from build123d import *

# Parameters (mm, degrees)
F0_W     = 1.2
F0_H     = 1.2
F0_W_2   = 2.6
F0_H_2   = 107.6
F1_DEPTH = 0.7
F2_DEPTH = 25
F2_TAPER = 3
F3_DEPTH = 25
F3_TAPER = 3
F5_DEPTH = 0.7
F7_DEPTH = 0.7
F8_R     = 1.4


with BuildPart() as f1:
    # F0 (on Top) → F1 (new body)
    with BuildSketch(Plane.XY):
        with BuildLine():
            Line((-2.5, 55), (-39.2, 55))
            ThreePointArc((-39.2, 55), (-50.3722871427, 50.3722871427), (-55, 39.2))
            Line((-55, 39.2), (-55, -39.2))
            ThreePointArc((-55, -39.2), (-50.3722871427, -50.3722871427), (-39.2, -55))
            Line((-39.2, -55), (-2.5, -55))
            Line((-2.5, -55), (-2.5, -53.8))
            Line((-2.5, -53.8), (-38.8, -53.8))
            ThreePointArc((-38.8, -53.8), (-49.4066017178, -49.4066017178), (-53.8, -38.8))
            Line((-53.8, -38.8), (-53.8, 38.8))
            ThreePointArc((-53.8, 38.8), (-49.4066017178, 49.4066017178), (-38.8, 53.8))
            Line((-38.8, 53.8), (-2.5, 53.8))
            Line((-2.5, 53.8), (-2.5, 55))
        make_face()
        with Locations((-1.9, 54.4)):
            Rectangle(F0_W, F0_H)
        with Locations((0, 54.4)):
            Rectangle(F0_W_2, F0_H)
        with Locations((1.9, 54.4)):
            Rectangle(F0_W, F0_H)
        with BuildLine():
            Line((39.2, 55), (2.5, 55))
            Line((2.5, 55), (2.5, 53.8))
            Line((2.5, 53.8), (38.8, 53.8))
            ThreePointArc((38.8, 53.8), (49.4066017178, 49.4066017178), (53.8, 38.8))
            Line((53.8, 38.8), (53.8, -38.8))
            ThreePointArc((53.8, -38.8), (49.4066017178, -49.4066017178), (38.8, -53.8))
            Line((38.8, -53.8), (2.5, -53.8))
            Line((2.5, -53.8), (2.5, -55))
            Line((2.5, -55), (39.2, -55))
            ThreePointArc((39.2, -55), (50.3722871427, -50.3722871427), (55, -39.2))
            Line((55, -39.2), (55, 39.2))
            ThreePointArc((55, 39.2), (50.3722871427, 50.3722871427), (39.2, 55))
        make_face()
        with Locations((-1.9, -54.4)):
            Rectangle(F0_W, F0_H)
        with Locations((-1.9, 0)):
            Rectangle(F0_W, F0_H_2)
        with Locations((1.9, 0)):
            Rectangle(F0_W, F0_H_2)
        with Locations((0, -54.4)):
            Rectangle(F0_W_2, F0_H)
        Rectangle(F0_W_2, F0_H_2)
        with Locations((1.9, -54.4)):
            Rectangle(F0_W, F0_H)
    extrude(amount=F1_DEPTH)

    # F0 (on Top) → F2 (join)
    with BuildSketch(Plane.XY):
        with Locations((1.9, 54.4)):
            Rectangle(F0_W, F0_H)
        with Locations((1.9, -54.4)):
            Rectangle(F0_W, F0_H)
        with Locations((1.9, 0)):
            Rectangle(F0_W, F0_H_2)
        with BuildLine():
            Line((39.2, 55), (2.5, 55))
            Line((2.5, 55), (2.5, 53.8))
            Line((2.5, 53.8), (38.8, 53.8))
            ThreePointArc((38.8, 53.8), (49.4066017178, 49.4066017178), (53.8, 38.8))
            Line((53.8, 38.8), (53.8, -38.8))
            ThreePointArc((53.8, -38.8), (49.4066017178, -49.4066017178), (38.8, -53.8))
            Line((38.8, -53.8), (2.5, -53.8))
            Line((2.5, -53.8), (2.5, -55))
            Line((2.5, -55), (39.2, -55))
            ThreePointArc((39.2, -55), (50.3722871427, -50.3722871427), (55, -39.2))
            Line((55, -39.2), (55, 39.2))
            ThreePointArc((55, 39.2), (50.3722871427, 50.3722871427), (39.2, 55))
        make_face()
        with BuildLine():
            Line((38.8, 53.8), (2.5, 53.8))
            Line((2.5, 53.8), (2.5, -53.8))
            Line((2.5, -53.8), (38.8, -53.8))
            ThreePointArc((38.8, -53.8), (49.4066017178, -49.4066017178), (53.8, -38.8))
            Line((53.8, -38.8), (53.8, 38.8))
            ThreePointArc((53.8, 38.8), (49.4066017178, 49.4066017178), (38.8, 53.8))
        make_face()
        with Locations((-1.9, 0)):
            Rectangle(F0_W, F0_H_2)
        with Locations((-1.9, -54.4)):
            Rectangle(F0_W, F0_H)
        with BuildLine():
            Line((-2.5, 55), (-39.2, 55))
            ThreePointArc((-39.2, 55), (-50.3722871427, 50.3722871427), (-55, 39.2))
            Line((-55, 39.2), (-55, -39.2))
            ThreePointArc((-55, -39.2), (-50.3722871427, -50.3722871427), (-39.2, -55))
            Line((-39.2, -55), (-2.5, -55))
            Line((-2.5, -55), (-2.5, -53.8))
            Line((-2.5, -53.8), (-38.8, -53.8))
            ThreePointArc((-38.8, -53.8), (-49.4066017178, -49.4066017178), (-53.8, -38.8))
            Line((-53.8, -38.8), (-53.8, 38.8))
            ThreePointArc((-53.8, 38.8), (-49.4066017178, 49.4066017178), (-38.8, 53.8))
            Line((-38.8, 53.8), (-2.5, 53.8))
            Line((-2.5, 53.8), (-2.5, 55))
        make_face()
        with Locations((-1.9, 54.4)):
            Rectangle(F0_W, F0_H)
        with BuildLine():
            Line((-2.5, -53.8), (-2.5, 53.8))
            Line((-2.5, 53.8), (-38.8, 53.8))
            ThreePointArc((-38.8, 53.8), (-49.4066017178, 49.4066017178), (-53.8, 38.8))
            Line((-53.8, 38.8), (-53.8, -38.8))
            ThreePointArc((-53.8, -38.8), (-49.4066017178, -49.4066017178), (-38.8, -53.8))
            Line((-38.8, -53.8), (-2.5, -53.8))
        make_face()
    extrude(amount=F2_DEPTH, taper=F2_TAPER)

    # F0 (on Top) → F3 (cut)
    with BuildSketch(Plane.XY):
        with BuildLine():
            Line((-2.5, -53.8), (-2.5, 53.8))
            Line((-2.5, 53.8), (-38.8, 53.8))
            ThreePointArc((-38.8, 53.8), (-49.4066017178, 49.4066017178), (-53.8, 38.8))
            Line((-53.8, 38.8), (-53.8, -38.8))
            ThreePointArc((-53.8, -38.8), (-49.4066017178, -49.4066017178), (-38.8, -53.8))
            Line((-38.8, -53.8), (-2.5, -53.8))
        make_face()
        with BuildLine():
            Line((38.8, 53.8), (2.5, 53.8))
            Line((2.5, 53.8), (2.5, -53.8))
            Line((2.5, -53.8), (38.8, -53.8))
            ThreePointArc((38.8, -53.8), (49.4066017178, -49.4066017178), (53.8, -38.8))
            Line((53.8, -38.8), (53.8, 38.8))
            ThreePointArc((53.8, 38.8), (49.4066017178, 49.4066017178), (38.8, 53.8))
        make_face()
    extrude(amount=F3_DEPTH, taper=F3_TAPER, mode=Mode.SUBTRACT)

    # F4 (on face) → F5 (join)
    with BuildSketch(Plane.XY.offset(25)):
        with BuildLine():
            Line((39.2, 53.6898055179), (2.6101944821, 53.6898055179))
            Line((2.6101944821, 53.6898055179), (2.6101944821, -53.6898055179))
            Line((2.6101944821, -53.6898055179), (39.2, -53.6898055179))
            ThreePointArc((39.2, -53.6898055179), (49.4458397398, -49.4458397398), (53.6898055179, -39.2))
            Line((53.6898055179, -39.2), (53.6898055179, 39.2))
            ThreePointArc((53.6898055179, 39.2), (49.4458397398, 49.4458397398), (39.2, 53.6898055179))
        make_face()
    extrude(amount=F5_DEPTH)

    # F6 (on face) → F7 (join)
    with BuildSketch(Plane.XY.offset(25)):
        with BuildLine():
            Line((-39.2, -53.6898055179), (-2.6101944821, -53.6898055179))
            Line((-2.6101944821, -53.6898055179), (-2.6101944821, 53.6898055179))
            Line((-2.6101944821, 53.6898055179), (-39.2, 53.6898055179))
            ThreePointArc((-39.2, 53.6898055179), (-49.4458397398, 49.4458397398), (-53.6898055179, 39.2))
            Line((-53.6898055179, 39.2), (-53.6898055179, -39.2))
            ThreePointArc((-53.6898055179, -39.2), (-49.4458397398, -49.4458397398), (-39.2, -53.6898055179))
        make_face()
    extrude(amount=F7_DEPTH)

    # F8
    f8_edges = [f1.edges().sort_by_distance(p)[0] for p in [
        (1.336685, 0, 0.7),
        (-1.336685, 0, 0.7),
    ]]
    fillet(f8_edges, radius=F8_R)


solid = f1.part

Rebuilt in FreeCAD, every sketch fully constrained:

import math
import FreeCAD as App
import Part
import Sketcher
from FreeCAD import Vector
Q = App.Units.Quantity


def edges_at(feature, points):
    """Names of the edges that pass closest to the given points."""
    edges = feature.Shape.Edges
    near = lambda p: min(range(len(edges)), key=lambda i: edges[i].distToShape(Part.Vertex(*p))[0])
    return sorted({f"Edge{near(p) + 1}" for p in points})

doc = App.newDocument("Part")
body = doc.addObject("PartDesign::Body", "Body")

# Sketch on XY plane
sketch1 = body.newObject("Sketcher::SketchObject", "Sketch")
sketch1.AttachmentSupport = (doc.getObject("XY_Plane"), [""])
sketch1.MapMode = "FlatFace"
sketch1.addGeometry([
    Part.LineSegment(Vector(-55, 39, 0), Vector(-55, -39, 0)),  # 0
    Part.ArcOfCircle(Part.Circle(Vector(-39, -39, 0), Vector(0, 0, 1), 16), math.radians(180), math.radians(270)),  # 1
    Part.LineSegment(Vector(-39, -55, 0), Vector(39, -55, 0)),  # 2
    Part.ArcOfCircle(Part.Circle(Vector(39, -39, 0), Vector(0, 0, 1), 16), math.radians(-90), math.radians(0)),  # 3
    Part.LineSegment(Vector(55, -39, 0), Vector(55, 39, 0)),  # 4
    Part.ArcOfCircle(Part.Circle(Vector(39, 39, 0), Vector(0, 0, 1), 16), math.radians(0), math.radians(90)),  # 5
    Part.LineSegment(Vector(39, 55, 0), Vector(-39, 55, 0)),  # 6
    Part.ArcOfCircle(Part.Circle(Vector(-39, 39, 0), Vector(0, 0, 1), 16), math.radians(90), math.radians(180)),  # 7
    Part.LineSegment(Vector(-39, 54, 0), Vector(-2, 54, 0)),  # 8
    Part.LineSegment(Vector(-2, 54, 0), Vector(-2, -54, 0)),  # 9
    Part.LineSegment(Vector(-2, -54, 0), Vector(-39, -54, 0)),  # 10
    Part.ArcOfCircle(Part.Circle(Vector(-39, -39, 0), Vector(0, 0, 1), 15), math.radians(180), math.radians(270)),  # 11
    Part.LineSegment(Vector(-54, -39, 0), Vector(-54, 39, 0)),  # 12
    Part.ArcOfCircle(Part.Circle(Vector(-39, 39, 0), Vector(0, 0, 1), 15), math.radians(90), math.radians(180)),  # 13
    Part.ArcOfCircle(Part.Circle(Vector(39, 39, 0), Vector(0, 0, 1), 15), math.radians(0), math.radians(90)),  # 14
    Part.LineSegment(Vector(54, 39, 0), Vector(54, -39, 0)),  # 15
    Part.ArcOfCircle(Part.Circle(Vector(39, -39, 0), Vector(0, 0, 1), 15), math.radians(-90), math.radians(0)),  # 16
    Part.LineSegment(Vector(39, -54, 0), Vector(2, -54, 0)),  # 17
    Part.LineSegment(Vector(2, -54, 0), Vector(2, 54, 0)),  # 18
    Part.LineSegment(Vector(2, 54, 0), Vector(39, 54, 0)),  # 19
], False)
sketch1.addConstraint([
    Sketcher.Constraint("Tangent", 0, 2, 1, 1),
    Sketcher.Constraint("Tangent", 1, 2, 2, 1),
    Sketcher.Constraint("Tangent", 2, 2, 3, 1),
    Sketcher.Constraint("Tangent", 3, 2, 4, 1),
    Sketcher.Constraint("Tangent", 4, 2, 5, 1),
    Sketcher.Constraint("Tangent", 5, 2, 6, 1),
    Sketcher.Constraint("Tangent", 6, 2, 7, 1),
    Sketcher.Constraint("Tangent", 7, 2, 0, 1),
    Sketcher.Constraint("Coincident", 8, 2, 9, 1),
    Sketcher.Constraint("Coincident", 9, 2, 10, 1),
    Sketcher.Constraint("Tangent", 10, 2, 11, 2),
    Sketcher.Constraint("Tangent", 11, 1, 12, 1),
    Sketcher.Constraint("Tangent", 12, 2, 13, 2),
    Sketcher.Constraint("Tangent", 13, 1, 8, 1),
    Sketcher.Constraint("Tangent", 14, 1, 15, 1),
    Sketcher.Constraint("Tangent", 15, 2, 16, 2),
    Sketcher.Constraint("Tangent", 16, 1, 17, 1),
    Sketcher.Constraint("Coincident", 17, 2, 18, 1),
    Sketcher.Constraint("Coincident", 18, 2, 19, 1),
    Sketcher.Constraint("Tangent", 19, 2, 14, 2),
    Sketcher.Constraint("Vertical", 0),
    Sketcher.Constraint("Horizontal", 2),
    Sketcher.Constraint("Vertical", 4),
    Sketcher.Constraint("Horizontal", 6),
    Sketcher.Constraint("Horizontal", 8),
    Sketcher.Constraint("Vertical", 9),
    Sketcher.Constraint("Horizontal", 10),
    Sketcher.Constraint("Vertical", 12),
    Sketcher.Constraint("Vertical", 15),
    Sketcher.Constraint("Horizontal", 17),
    Sketcher.Constraint("Vertical", 18),
    Sketcher.Constraint("Horizontal", 19),
    Sketcher.Constraint("Equal", 1, 3),
    Sketcher.Constraint("Equal", 3, 5),
    Sketcher.Constraint("Equal", 5, 7),
    Sketcher.Constraint("Equal", 11, 13),
    Sketcher.Constraint("Equal", 13, 14),
    Sketcher.Constraint("Equal", 14, 16),
    Sketcher.Constraint("Symmetric", 1, 3, 5, 3, -1, 1),
    Sketcher.Constraint("Symmetric", 11, 3, 14, 3, -1, 1),
    Sketcher.Constraint("Symmetric", 8, 2, 17, 2, -1, 1),
    Sketcher.Constraint("Horizontal", 13, 3, 14, 3),
    Sketcher.Constraint("Equal", 6, 0),
    Sketcher.Constraint("Radius", 11, Q("15 mm")),
    Sketcher.Constraint("Radius", 1, Q("15.8 mm")),
    Sketcher.Constraint("DistanceX", 2, 1, 2, 2, Q("78.4 mm")),
    Sketcher.Constraint("DistanceX", 8, 1, 8, 2, Q("36.3 mm")),
    Sketcher.Constraint("DistanceY", 9, 2, 9, 1, Q("107.6 mm")),
    Sketcher.Constraint("DistanceX", 11, 3, 3, 3, Q("78 mm")),
])
pad1 = body.newObject("PartDesign::Pad", "Pad")
pad1.Profile = sketch1
pad1.Length = 0.7

# Sketch on XY plane
sketch2 = body.newObject("Sketcher::SketchObject", "Sketch001")
sketch2.AttachmentSupport = (doc.getObject("XY_Plane"), [""])
sketch2.MapMode = "FlatFace"
sketch2.addGeometry([
    Part.LineSegment(Vector(1, 55, 0), Vector(1, -55, 0)),  # 0
    Part.LineSegment(Vector(1, -55, 0), Vector(39, -55, 0)),  # 1
    Part.ArcOfCircle(Part.Circle(Vector(39, -39, 0), Vector(0, 0, 1), 16), math.radians(-90), math.radians(0)),  # 2
    Part.LineSegment(Vector(55, -39, 0), Vector(55, 39, 0)),  # 3
    Part.ArcOfCircle(Part.Circle(Vector(39, 39, 0), Vector(0, 0, 1), 16), math.radians(0), math.radians(90)),  # 4
    Part.LineSegment(Vector(39, 55, 0), Vector(1, 55, 0)),  # 5
    Part.LineSegment(Vector(-1, -55, 0), Vector(-1, 55, 0)),  # 6
    Part.LineSegment(Vector(-1, 55, 0), Vector(-39, 55, 0)),  # 7
    Part.ArcOfCircle(Part.Circle(Vector(-39, 39, 0), Vector(0, 0, 1), 16), math.radians(90), math.radians(180)),  # 8
    Part.LineSegment(Vector(-55, 39, 0), Vector(-55, -39, 0)),  # 9
    Part.ArcOfCircle(Part.Circle(Vector(-39, -39, 0), Vector(0, 0, 1), 16), math.radians(180), math.radians(270)),  # 10
    Part.LineSegment(Vector(-39, -55, 0), Vector(-1, -55, 0)),  # 11
], False)
sketch2.addConstraint([
    Sketcher.Constraint("Coincident", 0, 2, 1, 1),
    Sketcher.Constraint("Tangent", 1, 2, 2, 1),
    Sketcher.Constraint("Tangent", 2, 2, 3, 1),
    Sketcher.Constraint("Tangent", 3, 2, 4, 1),
    Sketcher.Constraint("Tangent", 4, 2, 5, 1),
    Sketcher.Constraint("Coincident", 5, 2, 0, 1),
    Sketcher.Constraint("Coincident", 6, 2, 7, 1),
    Sketcher.Constraint("Tangent", 7, 2, 8, 1),
    Sketcher.Constraint("Tangent", 8, 2, 9, 1),
    Sketcher.Constraint("Tangent", 9, 2, 10, 1),
    Sketcher.Constraint("Tangent", 10, 2, 11, 1),
    Sketcher.Constraint("Coincident", 11, 2, 6, 1),
    Sketcher.Constraint("Vertical", 0),
    Sketcher.Constraint("Horizontal", 1),
    Sketcher.Constraint("Vertical", 3),
    Sketcher.Constraint("Horizontal", 5),
    Sketcher.Constraint("Vertical", 6),
    Sketcher.Constraint("Horizontal", 7),
    Sketcher.Constraint("Vertical", 9),
    Sketcher.Constraint("Horizontal", 11),
    Sketcher.Constraint("Equal", 2, 4),
    Sketcher.Constraint("Equal", 4, 8),
    Sketcher.Constraint("Equal", 8, 10),
    Sketcher.Constraint("Symmetric", 2, 3, 8, 3, -1, 1),
    Sketcher.Constraint("Symmetric", 5, 2, 11, 2, -1, 1),
    Sketcher.Constraint("Horizontal", 4, 3, 8, 3),
    Sketcher.Constraint("Radius", 2, Q("15.8 mm")),
    Sketcher.Constraint("DistanceY", 0, 2, 0, 1, Q("110 mm")),
    Sketcher.Constraint("DistanceX", 1, 1, 1, 2, Q("37.9 mm")),
    Sketcher.Constraint("DistanceX", -1, 1, 2, 2, Q("55 mm")),
])
pad2 = body.newObject("PartDesign::Pad", "Pad001")
pad2.Profile = sketch2
pad2.Length = 25
pad2.TaperAngle = -3

# Sketch on XY plane
sketch3 = body.newObject("Sketcher::SketchObject", "Sketch002")
sketch3.AttachmentSupport = (doc.getObject("XY_Plane"), [""])
sketch3.MapMode = "FlatFace"
sketch3.addGeometry([
    Part.LineSegment(Vector(-2, -54, 0), Vector(-2, 54, 0)),  # 0
    Part.LineSegment(Vector(-2, 54, 0), Vector(-39, 54, 0)),  # 1
    Part.ArcOfCircle(Part.Circle(Vector(-39, 39, 0), Vector(0, 0, 1), 15), math.radians(90), math.radians(180)),  # 2
    Part.LineSegment(Vector(-54, 39, 0), Vector(-54, -39, 0)),  # 3
    Part.ArcOfCircle(Part.Circle(Vector(-39, -39, 0), Vector(0, 0, 1), 15), math.radians(180), math.radians(270)),  # 4
    Part.LineSegment(Vector(-39, -54, 0), Vector(-2, -54, 0)),  # 5
    Part.LineSegment(Vector(39, 54, 0), Vector(2, 54, 0)),  # 6
    Part.LineSegment(Vector(2, 54, 0), Vector(2, -54, 0)),  # 7
    Part.LineSegment(Vector(2, -54, 0), Vector(39, -54, 0)),  # 8
    Part.ArcOfCircle(Part.Circle(Vector(39, -39, 0), Vector(0, 0, 1), 15), math.radians(-90), math.radians(0)),  # 9
    Part.LineSegment(Vector(54, -39, 0), Vector(54, 39, 0)),  # 10
    Part.ArcOfCircle(Part.Circle(Vector(39, 39, 0), Vector(0, 0, 1), 15), math.radians(0), math.radians(90)),  # 11
], False)
sketch3.addConstraint([
    Sketcher.Constraint("Coincident", 0, 2, 1, 1),
    Sketcher.Constraint("Tangent", 1, 2, 2, 1),
    Sketcher.Constraint("Tangent", 2, 2, 3, 1),
    Sketcher.Constraint("Tangent", 3, 2, 4, 1),
    Sketcher.Constraint("Tangent", 4, 2, 5, 1),
    Sketcher.Constraint("Coincident", 5, 2, 0, 1),
    Sketcher.Constraint("Coincident", 6, 2, 7, 1),
    Sketcher.Constraint("Coincident", 7, 2, 8, 1),
    Sketcher.Constraint("Tangent", 8, 2, 9, 1),
    Sketcher.Constraint("Tangent", 9, 2, 10, 1),
    Sketcher.Constraint("Tangent", 10, 2, 11, 1),
    Sketcher.Constraint("Tangent", 11, 2, 6, 1),
    Sketcher.Constraint("Vertical", 0),
    Sketcher.Constraint("Horizontal", 1),
    Sketcher.Constraint("Vertical", 3),
    Sketcher.Constraint("Horizontal", 5),
    Sketcher.Constraint("Horizontal", 6),
    Sketcher.Constraint("Vertical", 7),
    Sketcher.Constraint("Horizontal", 8),
    Sketcher.Constraint("Vertical", 10),
    Sketcher.Constraint("Equal", 2, 4),
    Sketcher.Constraint("Equal", 4, 9),
    Sketcher.Constraint("Equal", 9, 11),
    Sketcher.Constraint("Symmetric", 2, 3, 9, 3, -1, 1),
    Sketcher.Constraint("Symmetric", 5, 2, 6, 2, -1, 1),
    Sketcher.Constraint("Horizontal", 4, 3, 9, 3),
    Sketcher.Constraint("Radius", 2, Q("15 mm")),
    Sketcher.Constraint("DistanceX", 1, 2, 1, 1, Q("36.3 mm")),
    Sketcher.Constraint("DistanceY", 0, 1, 0, 2, Q("107.6 mm")),
    Sketcher.Constraint("DistanceX", 0, 2, 6, 2, Q("5 mm")),
])
pocket1 = body.newObject("PartDesign::Pocket", "Pocket")
pocket1.Profile = sketch3
pocket1.Length = 25
pocket1.Reversed = True
pocket1.TaperAngle = -3

# Sketch on XY plane
sketch4 = body.newObject("Sketcher::SketchObject", "Sketch003")
sketch4.AttachmentSupport = (doc.getObject("XY_Plane"), [""])
sketch4.MapMode = "FlatFace"
sketch4.AttachmentOffset = App.Placement(Vector(0, 0, 25), App.Rotation())
sketch4.addGeometry([
    Part.LineSegment(Vector(39, 54, 0), Vector(3, 54, 0)),  # 0
    Part.LineSegment(Vector(3, 54, 0), Vector(3, -54, 0)),  # 1
    Part.LineSegment(Vector(3, -54, 0), Vector(39, -54, 0)),  # 2
    Part.ArcOfCircle(Part.Circle(Vector(39, -39, 0), Vector(0, 0, 1), 14), math.radians(-90), math.radians(0)),  # 3
    Part.LineSegment(Vector(54, -39, 0), Vector(54, 39, 0)),  # 4
    Part.ArcOfCircle(Part.Circle(Vector(39, 39, 0), Vector(0, 0, 1), 14), math.radians(0), math.radians(90)),  # 5
], False)
sketch4.addConstraint([
    Sketcher.Constraint("Coincident", 0, 2, 1, 1),
    Sketcher.Constraint("Coincident", 1, 2, 2, 1),
    Sketcher.Constraint("Tangent", 2, 2, 3, 1),
    Sketcher.Constraint("Tangent", 3, 2, 4, 1),
    Sketcher.Constraint("Tangent", 4, 2, 5, 1),
    Sketcher.Constraint("Tangent", 5, 2, 0, 1),
    Sketcher.Constraint("Horizontal", 0),
    Sketcher.Constraint("Vertical", 1),
    Sketcher.Constraint("Horizontal", 2),
    Sketcher.Constraint("Vertical", 4),
    Sketcher.Constraint("Equal", 3, 5),
    Sketcher.Constraint("DistanceY", 4, 1, 4, 2, Q("78.4 mm")),
    Sketcher.Constraint("DistanceX", -1, 1, 3, 3, Q("39.2 mm")),
    Sketcher.Constraint("DistanceY", 3, 3, -1, 1, Q("39.2 mm")),
    Sketcher.Constraint("Radius", 3, Q("14.489806 mm")),
    Sketcher.Constraint("DistanceX", 0, 2, 0, 1, Q("36.589806 mm")),
])
pad3 = body.newObject("PartDesign::Pad", "Pad002")
pad3.Profile = sketch4
pad3.Length = 0.7

# Sketch on XY plane
sketch5 = body.newObject("Sketcher::SketchObject", "Sketch004")
sketch5.AttachmentSupport = (doc.getObject("XY_Plane"), [""])
sketch5.MapMode = "FlatFace"
sketch5.AttachmentOffset = App.Placement(Vector(0, 0, 25), App.Rotation())
sketch5.addGeometry([
    Part.LineSegment(Vector(-39, -54, 0), Vector(-3, -54, 0)),  # 0
    Part.LineSegment(Vector(-3, -54, 0), Vector(-3, 54, 0)),  # 1
    Part.LineSegment(Vector(-3, 54, 0), Vector(-39, 54, 0)),  # 2
    Part.ArcOfCircle(Part.Circle(Vector(-39, 39, 0), Vector(0, 0, 1), 14), math.radians(90), math.radians(180)),  # 3
    Part.LineSegment(Vector(-54, 39, 0), Vector(-54, -39, 0)),  # 4
    Part.ArcOfCircle(Part.Circle(Vector(-39, -39, 0), Vector(0, 0, 1), 14), math.radians(180), math.radians(270)),  # 5
], False)
sketch5.addConstraint([
    Sketcher.Constraint("Coincident", 0, 2, 1, 1),
    Sketcher.Constraint("Coincident", 1, 2, 2, 1),
    Sketcher.Constraint("Tangent", 2, 2, 3, 1),
    Sketcher.Constraint("Tangent", 3, 2, 4, 1),
    Sketcher.Constraint("Tangent", 4, 2, 5, 1),
    Sketcher.Constraint("Tangent", 5, 2, 0, 1),
    Sketcher.Constraint("Horizontal", 0),
    Sketcher.Constraint("Vertical", 1),
    Sketcher.Constraint("Horizontal", 2),
    Sketcher.Constraint("Vertical", 4),
    Sketcher.Constraint("Equal", 3, 5),
    Sketcher.Constraint("DistanceY", 4, 2, 4, 1, Q("78.4 mm")),
    Sketcher.Constraint("DistanceX", 3, 3, -1, 1, Q("39.2 mm")),
    Sketcher.Constraint("DistanceY", -1, 1, 3, 3, Q("39.2 mm")),
    Sketcher.Constraint("Radius", 3, Q("14.489806 mm")),
    Sketcher.Constraint("DistanceX", 0, 1, 0, 2, Q("36.589806 mm")),
])
pad4 = body.newObject("PartDesign::Pad", "Pad003")
pad4.Profile = sketch5
pad4.Length = 0.7
doc.recompute()

fillet = body.newObject("PartDesign::Fillet", "Fillet")
fillet.Base = (pad4, edges_at(pad4, [(1.337, 0, 0.7), (-1.337, 0, 0.7)]))
fillet.Radius = 1.4

doc.recompute()
